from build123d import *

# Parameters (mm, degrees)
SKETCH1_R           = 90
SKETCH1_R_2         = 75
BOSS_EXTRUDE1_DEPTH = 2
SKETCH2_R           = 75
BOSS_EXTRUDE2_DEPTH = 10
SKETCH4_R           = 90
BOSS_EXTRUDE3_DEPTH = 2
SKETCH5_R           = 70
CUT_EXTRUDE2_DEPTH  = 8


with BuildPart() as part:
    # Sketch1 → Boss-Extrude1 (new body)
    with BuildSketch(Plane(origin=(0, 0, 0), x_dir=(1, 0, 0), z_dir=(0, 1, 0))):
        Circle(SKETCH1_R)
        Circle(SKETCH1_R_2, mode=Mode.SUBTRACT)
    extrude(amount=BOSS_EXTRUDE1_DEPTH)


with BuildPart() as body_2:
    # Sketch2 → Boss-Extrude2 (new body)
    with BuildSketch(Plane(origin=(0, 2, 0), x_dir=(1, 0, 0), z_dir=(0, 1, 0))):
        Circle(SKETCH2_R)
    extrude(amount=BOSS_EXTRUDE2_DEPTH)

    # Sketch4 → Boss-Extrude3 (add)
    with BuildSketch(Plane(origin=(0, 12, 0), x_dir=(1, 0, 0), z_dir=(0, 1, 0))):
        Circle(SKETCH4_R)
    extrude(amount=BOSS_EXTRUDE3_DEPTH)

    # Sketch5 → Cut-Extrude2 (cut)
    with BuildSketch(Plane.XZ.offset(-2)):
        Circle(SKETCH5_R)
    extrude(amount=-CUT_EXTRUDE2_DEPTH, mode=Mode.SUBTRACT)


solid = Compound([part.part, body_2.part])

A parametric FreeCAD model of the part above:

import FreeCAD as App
import Part
import Sketcher

doc = App.newDocument("Part")
body = doc.addObject("PartDesign::Body", "Body")

sketch1 = body.newObject("Sketcher::SketchObject", "Sketch")
sketch1.AttachmentSupport = (doc.getObject("XZ_Plane"), [""])
sketch1.MapMode = "FlatFace"
sketch1.addGeometry([
    Part.Circle(App.Vector(0, 0, 0), App.Vector(0, 0, 1), 90),
    Part.Circle(App.Vector(0, 0, 0), App.Vector(0, 0, 1), 75),
], False)
sketch1.addConstraint([
    Sketcher.Constraint("Coincident", 0, 3, -1, 1),
    Sketcher.Constraint("Coincident", 1, 3, -1, 1),
    Sketcher.Constraint("Diameter", 0, 180.0),
    Sketcher.Constraint("Diameter", 1, 150.0),
])
pad1 = body.newObject("PartDesign::Pad", "Pad")
pad1.Profile = sketch1
pad1.Length = 2
pad1.Reversed = True
body2 = doc.addObject("PartDesign::Body", "Body001")

sketch2 = body2.newObject("Sketcher::SketchObject", "Sketch001")
sketch2.AttachmentSupport = (doc.getObject("XZ_Plane001"), [""])
sketch2.MapMode = "FlatFace"
sketch2.AttachmentOffset = App.Placement(App.Vector(0, 0, -2), App.Rotation())
sketch2.addGeometry(Part.Circle(App.Vector(0, 0, 0), App.Vector(0, 0, 1), 75), False)
sketch2.addConstraint([
    Sketcher.Constraint("Coincident", 0, 3, -1, 1),
    Sketcher.Constraint("Diameter", 0, 150.0),
])
pad2 = body2.newObject("PartDesign::Pad", "Pad001")
pad2.Profile = sketch2
pad2.Length = 10
pad2.Reversed = True

sketch3 = body2.newObject("Sketcher::SketchObject", "Sketch002")
sketch3.AttachmentSupport = (doc.getObject("XZ_Plane001"), [""])
sketch3.MapMode = "FlatFace"
sketch3.AttachmentOffset = App.Placement(App.Vector(0, 0, -12), App.Rotation())
sketch3.addGeometry(Part.Circle(App.Vector(0, 0, 0), App.Vector(0, 0, 1), 90), False)
sketch3.addConstraint([
    Sketcher.Constraint("Coincident", 0, 3, -1, 1),
    Sketcher.Constraint("Diameter", 0, 180.0),
])
pad3 = body2.newObject("PartDesign::Pad", "Pad002")
pad3.Profile = sketch3
pad3.Length = 2
pad3.Reversed = True

sketch4 = body2.newObject("Sketcher::SketchObject", "Sketch003")
sketch4.AttachmentSupport = (doc.getObject("XZ_Plane001"), [""])
sketch4.MapMode = "FlatFace"
sketch4.AttachmentOffset = App.Placement(App.Vector(0, 0, -2), App.Rotation())
sketch4.addGeometry(Part.Circle(App.Vector(0, 0, 0), App.Vector(0, 0, 1), 70), False)
sketch4.addConstraint([
    Sketcher.Constraint("Coincident", 0, 3, -1, 1),
    Sketcher.Constraint("Diameter", 0, 140.0),
])
pocket1 = body2.newObject("PartDesign::Pocket", "Pocket")
pocket1.Profile = sketch4
pocket1.Length = 8

doc.recompute()
